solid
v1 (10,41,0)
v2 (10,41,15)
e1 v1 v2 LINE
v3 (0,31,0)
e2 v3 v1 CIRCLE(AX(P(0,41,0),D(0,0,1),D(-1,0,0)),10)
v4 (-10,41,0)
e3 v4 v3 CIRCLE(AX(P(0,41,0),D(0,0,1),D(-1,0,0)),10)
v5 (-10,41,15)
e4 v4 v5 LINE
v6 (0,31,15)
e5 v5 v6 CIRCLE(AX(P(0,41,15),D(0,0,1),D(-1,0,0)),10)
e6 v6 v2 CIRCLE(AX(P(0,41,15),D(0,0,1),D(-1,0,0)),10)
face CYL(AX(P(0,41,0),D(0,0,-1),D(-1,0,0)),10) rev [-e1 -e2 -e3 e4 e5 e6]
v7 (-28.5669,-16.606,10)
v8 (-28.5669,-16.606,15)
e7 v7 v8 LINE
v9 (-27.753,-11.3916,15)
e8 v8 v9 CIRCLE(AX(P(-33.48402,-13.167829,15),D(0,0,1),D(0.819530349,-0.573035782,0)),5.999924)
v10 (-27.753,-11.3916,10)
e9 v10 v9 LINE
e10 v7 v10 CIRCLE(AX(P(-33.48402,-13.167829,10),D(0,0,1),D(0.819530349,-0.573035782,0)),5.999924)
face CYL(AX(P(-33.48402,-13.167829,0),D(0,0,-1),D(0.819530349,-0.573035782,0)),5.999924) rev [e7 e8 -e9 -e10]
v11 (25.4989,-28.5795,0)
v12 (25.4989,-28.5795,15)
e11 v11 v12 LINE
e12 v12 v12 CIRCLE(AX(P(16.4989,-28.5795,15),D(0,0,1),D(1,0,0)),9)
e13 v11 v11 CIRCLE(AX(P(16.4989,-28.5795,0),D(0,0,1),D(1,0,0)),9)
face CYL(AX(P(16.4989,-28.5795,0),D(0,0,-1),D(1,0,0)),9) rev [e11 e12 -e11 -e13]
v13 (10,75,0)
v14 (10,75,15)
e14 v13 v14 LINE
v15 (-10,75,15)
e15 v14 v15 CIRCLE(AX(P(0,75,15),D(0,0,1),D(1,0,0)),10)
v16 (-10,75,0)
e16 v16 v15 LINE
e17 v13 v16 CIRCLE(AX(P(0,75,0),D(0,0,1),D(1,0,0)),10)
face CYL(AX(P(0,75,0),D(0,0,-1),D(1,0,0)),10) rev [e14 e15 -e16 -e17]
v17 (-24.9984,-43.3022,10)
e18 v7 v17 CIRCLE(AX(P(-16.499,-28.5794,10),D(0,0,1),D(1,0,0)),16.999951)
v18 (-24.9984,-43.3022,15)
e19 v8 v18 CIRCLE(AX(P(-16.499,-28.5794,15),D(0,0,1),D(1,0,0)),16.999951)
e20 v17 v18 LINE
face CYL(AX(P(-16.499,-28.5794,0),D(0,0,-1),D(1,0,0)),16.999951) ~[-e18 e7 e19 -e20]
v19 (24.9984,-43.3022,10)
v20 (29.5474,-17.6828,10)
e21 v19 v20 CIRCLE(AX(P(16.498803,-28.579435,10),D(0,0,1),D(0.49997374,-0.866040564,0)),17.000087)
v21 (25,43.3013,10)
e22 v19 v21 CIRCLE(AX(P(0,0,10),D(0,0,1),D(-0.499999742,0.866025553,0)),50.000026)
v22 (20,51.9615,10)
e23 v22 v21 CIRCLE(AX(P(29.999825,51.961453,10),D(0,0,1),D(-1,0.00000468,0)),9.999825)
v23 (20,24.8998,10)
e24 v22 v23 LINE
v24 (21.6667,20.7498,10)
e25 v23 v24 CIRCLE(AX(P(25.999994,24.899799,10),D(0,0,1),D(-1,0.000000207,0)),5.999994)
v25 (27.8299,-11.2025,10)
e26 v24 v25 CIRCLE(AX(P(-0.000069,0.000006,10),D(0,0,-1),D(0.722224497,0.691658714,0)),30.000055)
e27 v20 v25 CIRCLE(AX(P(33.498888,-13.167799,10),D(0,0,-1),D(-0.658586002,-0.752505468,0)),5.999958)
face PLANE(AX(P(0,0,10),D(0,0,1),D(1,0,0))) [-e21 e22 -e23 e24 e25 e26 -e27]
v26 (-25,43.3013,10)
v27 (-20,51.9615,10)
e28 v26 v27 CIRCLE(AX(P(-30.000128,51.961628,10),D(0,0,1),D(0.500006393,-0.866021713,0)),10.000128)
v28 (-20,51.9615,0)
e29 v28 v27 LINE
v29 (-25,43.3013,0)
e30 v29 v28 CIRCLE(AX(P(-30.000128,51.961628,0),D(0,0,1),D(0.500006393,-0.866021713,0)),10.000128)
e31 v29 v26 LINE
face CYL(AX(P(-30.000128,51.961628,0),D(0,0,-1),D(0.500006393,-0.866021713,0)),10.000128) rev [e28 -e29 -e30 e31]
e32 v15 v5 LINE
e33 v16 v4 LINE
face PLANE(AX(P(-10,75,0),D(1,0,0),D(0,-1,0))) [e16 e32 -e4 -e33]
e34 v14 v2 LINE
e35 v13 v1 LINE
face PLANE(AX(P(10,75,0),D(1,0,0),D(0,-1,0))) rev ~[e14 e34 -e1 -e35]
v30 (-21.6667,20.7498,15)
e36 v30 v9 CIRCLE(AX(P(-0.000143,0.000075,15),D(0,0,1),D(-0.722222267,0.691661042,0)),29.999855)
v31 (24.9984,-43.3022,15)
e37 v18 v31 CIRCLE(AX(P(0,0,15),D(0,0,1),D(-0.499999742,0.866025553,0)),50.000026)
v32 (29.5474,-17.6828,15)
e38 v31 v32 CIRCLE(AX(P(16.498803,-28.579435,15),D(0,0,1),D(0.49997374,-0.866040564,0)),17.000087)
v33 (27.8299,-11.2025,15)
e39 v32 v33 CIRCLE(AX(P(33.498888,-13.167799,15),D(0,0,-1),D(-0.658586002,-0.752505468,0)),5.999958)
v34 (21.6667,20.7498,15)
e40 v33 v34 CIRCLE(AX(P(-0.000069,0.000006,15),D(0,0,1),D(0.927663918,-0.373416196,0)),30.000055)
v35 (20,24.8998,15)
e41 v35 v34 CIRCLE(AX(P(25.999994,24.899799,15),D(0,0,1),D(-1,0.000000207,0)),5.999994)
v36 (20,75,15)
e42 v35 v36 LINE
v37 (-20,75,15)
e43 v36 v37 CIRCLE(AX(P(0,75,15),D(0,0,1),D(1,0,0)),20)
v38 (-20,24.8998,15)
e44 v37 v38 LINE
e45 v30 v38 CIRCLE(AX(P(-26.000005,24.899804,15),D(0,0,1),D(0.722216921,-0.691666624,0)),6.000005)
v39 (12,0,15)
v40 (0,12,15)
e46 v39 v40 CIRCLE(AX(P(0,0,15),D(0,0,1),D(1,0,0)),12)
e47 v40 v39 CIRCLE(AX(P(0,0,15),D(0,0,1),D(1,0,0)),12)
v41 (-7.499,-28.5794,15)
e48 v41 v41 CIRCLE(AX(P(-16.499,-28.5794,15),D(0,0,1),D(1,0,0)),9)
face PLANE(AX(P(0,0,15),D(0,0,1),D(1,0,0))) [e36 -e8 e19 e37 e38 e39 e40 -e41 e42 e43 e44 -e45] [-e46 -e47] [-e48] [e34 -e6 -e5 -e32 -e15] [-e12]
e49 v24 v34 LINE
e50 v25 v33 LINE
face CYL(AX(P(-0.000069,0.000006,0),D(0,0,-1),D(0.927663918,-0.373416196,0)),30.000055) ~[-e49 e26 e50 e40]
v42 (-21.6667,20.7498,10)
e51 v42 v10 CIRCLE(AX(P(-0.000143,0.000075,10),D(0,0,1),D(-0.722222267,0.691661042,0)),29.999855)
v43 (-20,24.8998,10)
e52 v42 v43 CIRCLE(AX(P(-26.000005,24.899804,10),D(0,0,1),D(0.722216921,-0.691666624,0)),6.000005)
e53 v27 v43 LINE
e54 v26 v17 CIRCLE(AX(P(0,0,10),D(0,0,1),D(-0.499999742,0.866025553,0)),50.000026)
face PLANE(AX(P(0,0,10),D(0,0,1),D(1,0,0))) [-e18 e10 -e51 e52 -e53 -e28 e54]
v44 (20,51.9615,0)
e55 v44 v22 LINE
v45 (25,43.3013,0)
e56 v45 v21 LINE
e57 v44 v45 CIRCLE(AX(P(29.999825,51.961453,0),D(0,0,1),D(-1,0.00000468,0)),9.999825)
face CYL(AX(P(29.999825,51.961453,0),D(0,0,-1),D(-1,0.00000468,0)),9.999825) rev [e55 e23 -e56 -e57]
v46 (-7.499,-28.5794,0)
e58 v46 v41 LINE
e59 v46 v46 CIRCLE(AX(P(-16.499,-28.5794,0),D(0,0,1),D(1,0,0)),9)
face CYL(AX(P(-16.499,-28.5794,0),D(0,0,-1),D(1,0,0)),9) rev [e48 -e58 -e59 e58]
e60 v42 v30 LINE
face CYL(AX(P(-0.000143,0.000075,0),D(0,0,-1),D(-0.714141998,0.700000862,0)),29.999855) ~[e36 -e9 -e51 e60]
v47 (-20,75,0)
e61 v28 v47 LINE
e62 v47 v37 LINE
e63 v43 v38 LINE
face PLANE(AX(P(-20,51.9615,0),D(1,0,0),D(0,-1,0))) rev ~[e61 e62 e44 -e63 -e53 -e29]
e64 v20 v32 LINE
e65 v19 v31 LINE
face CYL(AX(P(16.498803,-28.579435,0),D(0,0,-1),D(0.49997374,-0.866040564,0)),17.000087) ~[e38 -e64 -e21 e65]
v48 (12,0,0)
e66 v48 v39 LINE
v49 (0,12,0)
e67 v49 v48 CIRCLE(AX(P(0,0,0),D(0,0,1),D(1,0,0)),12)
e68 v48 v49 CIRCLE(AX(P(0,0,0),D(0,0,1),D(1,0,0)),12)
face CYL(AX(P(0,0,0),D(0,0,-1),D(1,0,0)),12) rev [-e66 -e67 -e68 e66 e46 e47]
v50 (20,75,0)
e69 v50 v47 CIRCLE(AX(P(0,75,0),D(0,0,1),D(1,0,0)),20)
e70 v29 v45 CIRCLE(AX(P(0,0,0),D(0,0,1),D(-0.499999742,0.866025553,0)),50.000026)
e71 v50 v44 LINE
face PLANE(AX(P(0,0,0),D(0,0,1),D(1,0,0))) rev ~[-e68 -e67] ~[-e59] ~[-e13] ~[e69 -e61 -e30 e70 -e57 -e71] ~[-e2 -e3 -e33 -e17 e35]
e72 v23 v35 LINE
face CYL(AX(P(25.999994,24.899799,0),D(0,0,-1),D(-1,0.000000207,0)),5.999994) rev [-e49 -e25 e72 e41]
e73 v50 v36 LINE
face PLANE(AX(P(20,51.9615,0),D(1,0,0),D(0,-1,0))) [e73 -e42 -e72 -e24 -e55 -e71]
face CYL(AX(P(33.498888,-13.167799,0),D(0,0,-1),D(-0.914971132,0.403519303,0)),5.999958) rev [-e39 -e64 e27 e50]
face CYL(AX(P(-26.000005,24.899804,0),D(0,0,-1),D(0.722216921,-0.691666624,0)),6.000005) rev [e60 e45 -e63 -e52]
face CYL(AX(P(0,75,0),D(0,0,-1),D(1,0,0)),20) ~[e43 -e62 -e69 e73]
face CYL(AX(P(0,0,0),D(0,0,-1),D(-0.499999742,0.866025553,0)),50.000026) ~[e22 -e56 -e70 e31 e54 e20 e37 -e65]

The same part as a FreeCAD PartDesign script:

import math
import FreeCAD as App
import Part
import Sketcher

V = App.Vector

doc = App.newDocument("Part")
body = doc.addObject("PartDesign::Body", "Body")
body.AllowCompound = True

# Sketch on XY plane
sketch1 = body.newObject("Sketcher::SketchObject", "Sketch")
sketch1.AttachmentSupport = (doc.getObject("XY_Plane"), [""])
sketch1.MapMode = "FlatFace"
sketch1.addGeometry([
    Part.ArcOfCircle(Part.Circle(V(-30, 52, 0), V(0, 0, 1), 10), math.radians(-60), math.radians(0)),  # 0
    Part.ArcOfCircle(Part.Circle(V(0, 0, 0), V(0, 0, 1), 50), math.radians(120), math.radians(240)),  # 1
    Part.ArcOfCircle(Part.Circle(V(-16.5, -28.6, 0), V(0, 0, 1), 17), math.radians(135), math.radians(240)),  # 2
    Part.ArcOfCircle(Part.Circle(V(-33.5, -13.2, 0), V(0, 0, 1), 6), math.radians(-35), math.radians(17)),  # 3
    Part.ArcOfCircle(Part.Circle(V(0, 0, 0), V(0, 0, 1), 30), math.radians(136), math.radians(202)),  # 4
    Part.ArcOfCircle(Part.Circle(V(-26, 24.9, 0), V(0, 0, 1), 6), math.radians(-44), math.radians(0)),  # 5
    Part.LineSegment(V(-20, 24.9, 0), V(-20, 52, 0)),  # 6
    Part.ArcOfCircle(Part.Circle(V(16.5, -28.6, 0), V(0, 0, 1), 17), math.radians(-60), math.radians(40)),  # 7
    Part.ArcOfCircle(Part.Circle(V(0, 0, 0), V(0, 0, 1), 50), math.radians(-60), math.radians(60)),  # 8
    Part.ArcOfCircle(Part.Circle(V(30, 52, 0), V(0, 0, 1), 10), math.radians(180), math.radians(240)),  # 9
    Part.LineSegment(V(20, 52, 0), V(20, 24.9, 0)),  # 10
    Part.ArcOfCircle(Part.Circle(V(26, 24.9, 0), V(0, 0, 1), 6), math.radians(180), math.radians(224)),  # 11
    Part.ArcOfCircle(Part.Circle(V(0, 0, 0), V(0, 0, 1), 30), math.radians(-22), math.radians(44)),  # 12
    Part.ArcOfCircle(Part.Circle(V(33.5, -13.2, 0), V(0, 0, 1), 6), math.radians(161), math.radians(229)),  # 13
], False)
sketch1.addConstraint([
    Sketcher.Constraint("Tangent", 0, 1, 1, 1),
    Sketcher.Constraint("Tangent", 1, 2, 2, 2),
    Sketcher.Constraint("Coincident", 2, 1, 3, 1),
    Sketcher.Constraint("Coincident", 3, 2, 4, 2),
    Sketcher.Constraint("Tangent", 4, 1, 5, 1),
    Sketcher.Constraint("Tangent", 5, 2, 6, 1),
    Sketcher.Constraint("Tangent", 6, 2, 0, 2),
    Sketcher.Constraint("Tangent", 7, 1, 8, 1),
    Sketcher.Constraint("Tangent", 8, 2, 9, 2),
    Sketcher.Constraint("Tangent", 9, 1, 10, 1),
    Sketcher.Constraint("Tangent", 10, 2, 11, 1),
    Sketcher.Constraint("Tangent", 11, 2, 12, 2),
    Sketcher.Constraint("Coincident", 12, 1, 13, 1),
    Sketcher.Constraint("Coincident", 13, 2, 7, 2),
    Sketcher.Constraint("Vertical", 6),
    Sketcher.Constraint("Vertical", 10),
    Sketcher.Constraint("Coincident", 1, 3, -1, 1),
    Sketcher.Constraint("Coincident", 4, 3, -1, 1),
    Sketcher.Constraint("Coincident", 8, 3, -1, 1),
    Sketcher.Constraint("Coincident", 12, 3, -1, 1),
    Sketcher.Constraint("Equal", 3, 5),
    Sketcher.Constraint("Equal", 2, 7),
    Sketcher.Constraint("Equal", 1, 8),
    Sketcher.Constraint("Equal", 0, 9),
    Sketcher.Constraint("Equal", 5, 11),
    Sketcher.Constraint("Equal", 4, 12),
    Sketcher.Constraint("Equal", 11, 13),
    Sketcher.Constraint("Horizontal", 2, 3, 7, 3),
    Sketcher.Constraint("Horizontal", 0, 3, 9, 3),
    Sketcher.Constraint("Horizontal", 3, 3, 13, 3),
    Sketcher.Constraint("Radius", 0, 10.0),
    Sketcher.Constraint("Radius", 1, 50.0),
    Sketcher.Constraint("Radius", 2, 17.0),
    Sketcher.Constraint("Radius", 3, 6.0),
    Sketcher.Constraint("Radius", 4, 30.0),
    Sketcher.Constraint("DistanceX", 0, 3, -1, 1, 30.0),
    Sketcher.Constraint("DistanceX", 7, 3, 13, 3, 17.0),
    Sketcher.Constraint("DistanceX", -1, 1, 12, 1, 27.83),
    Sketcher.Constraint("DistanceX", 2, 3, -1, 1, 16.499),
    Sketcher.Constraint("DistanceX", 3, 3, -1, 1, 33.484),
])
pad1 = body.newObject("PartDesign::Pad", "Pad")
pad1.Profile = sketch1
pad1.Length = 10

# Sketch on XY plane
sketch2 = body.newObject("Sketcher::SketchObject", "Sketch001")
sketch2.AttachmentSupport = (doc.getObject("XY_Plane"), [""])
sketch2.MapMode = "FlatFace"
sketch2.addGeometry([
    Part.ArcOfCircle(Part.Circle(V(-33.5, -13.2, 0), V(0, 0, 1), 6), math.radians(-35), math.radians(17)),  # 0
    Part.ArcOfCircle(Part.Circle(V(-16.5, -28.6, 0), V(0, 0, 1), 17), math.radians(135), math.radians(240)),  # 1
    Part.ArcOfCircle(Part.Circle(V(0, 0, 0), V(0, 0, 1), 50), math.radians(-120), math.radians(-60)),  # 2
    Part.ArcOfCircle(Part.Circle(V(16.5, -28.6, 0), V(0, 0, 1), 17), math.radians(-60), math.radians(40)),  # 3
    Part.ArcOfCircle(Part.Circle(V(33.5, -13.2, 0), V(0, 0, 1), 6), math.radians(161), math.radians(229)),  # 4
    Part.ArcOfCircle(Part.Circle(V(0, 0, 0), V(0, 0, 1), 30), math.radians(-22), math.radians(44)),  # 5
    Part.ArcOfCircle(Part.Circle(V(26, 24.9, 0), V(0, 0, 1), 6), math.radians(180), math.radians(224)),  # 6
    Part.LineSegment(V(20, 24.9, 0), V(20, 75, 0)),  # 7
    Part.ArcOfCircle(Part.Circle(V(0, 75, 0), V(0, 0, 1), 20), math.radians(0), math.radians(180)),  # 8
    Part.LineSegment(V(-20, 75, 0), V(-20, 24.9, 0)),  # 9
    Part.ArcOfCircle(Part.Circle(V(-26, 24.9, 0), V(0, 0, 1), 6), math.radians(-44), math.radians(0)),  # 10
    Part.ArcOfCircle(Part.Circle(V(0, 0, 0), V(0, 0, 1), 30), math.radians(136), math.radians(202)),  # 11
    Part.Circle(V(16.5, -28.6, 0), V(0, 0, 1), 9),  # 12
    Part.Circle(V(0, 0, 0), V(0, 0, 1), 12),  # 13
    Part.ArcOfCircle(Part.Circle(V(0, 41, 0), V(0, 0, 1), 10), math.radians(-90), math.radians(0)),  # 14
    Part.ArcOfCircle(Part.Circle(V(0, 41, 0), V(0, 0, 1), 10), math.radians(180), math.radians(270)),  # 15
    Part.LineSegment(V(-10, 41, 0), V(-10, 75, 0)),  # 16
    Part.ArcOfCircle(Part.Circle(V(0, 75, 0), V(0, 0, 1), 10), math.radians(0), math.radians(180)),  # 17
    Part.LineSegment(V(10, 75, 0), V(10, 41, 0)),  # 18
    Part.Circle(V(-16.5, -28.6, 0), V(0, 0, 1), 9),  # 19
], False)
sketch2.addConstraint([
    Sketcher.Constraint("Coincident", 0, 1, 1, 1),
    Sketcher.Constraint("Tangent", 1, 2, 2, 1),
    Sketcher.Constraint("Tangent", 2, 2, 3, 1),
    Sketcher.Constraint("Coincident", 3, 2, 4, 2),
    Sketcher.Constraint("Coincident", 4, 1, 5, 1),
    Sketcher.Constraint("Tangent", 5, 2, 6, 2),
    Sketcher.Constraint("Tangent", 6, 1, 7, 1),
    Sketcher.Constraint("Tangent", 7, 2, 8, 1),
    Sketcher.Constraint("Tangent", 8, 2, 9, 1),
    Sketcher.Constraint("Tangent", 9, 2, 10, 2),
    Sketcher.Constraint("Tangent", 10, 1, 11, 1),
    Sketcher.Constraint("Coincident", 11, 2, 0, 2),
    Sketcher.Constraint("Tangent", 14, 1, 15, 2),
    Sketcher.Constraint("Tangent", 15, 1, 16, 1),
    Sketcher.Constraint("Tangent", 16, 2, 17, 2),
    Sketcher.Constraint("Tangent", 17, 1, 18, 1),
    Sketcher.Constraint("Tangent", 18, 2, 14, 2),
    Sketcher.Constraint("Vertical", 7),
    Sketcher.Constraint("Vertical", 9),
    Sketcher.Constraint("Vertical", 16),
    Sketcher.Constraint("Vertical", 18),
    Sketcher.Constraint("Coincident", 2, 3, -1, 1),
    Sketcher.Constraint("Coincident", 5, 3, -1, 1),
    Sketcher.Constraint("Coincident", 11, 3, -1, 1),
    Sketcher.Constraint("Coincident", 13, 3, -1, 1),
    Sketcher.Constraint("Coincident", 12, 3, 3, 3),
    Sketcher.Constraint("Coincident", 17, 3, 8, 3),
    Sketcher.Constraint("Coincident", 19, 3, 1, 3),
    Sketcher.Constraint("Equal", 1, 3),
    Sketcher.Constraint("Equal", 0, 4),
    Sketcher.Constraint("Equal", 4, 6),
    Sketcher.Constraint("Equal", 6, 10),
    Sketcher.Constraint("Equal", 5, 11),
    Sketcher.Constraint("Equal", 14, 15),
    Sketcher.Constraint("Equal", 12, 19),
    Sketcher.Constraint("PointOnObject", 8, 3, -2),
    Sketcher.Constraint("PointOnObject", 14, 1, -2),
    Sketcher.Constraint("Horizontal", 1, 3, 3, 3),
    Sketcher.Constraint("Horizontal", 0, 3, 4, 3),
    Sketcher.Constraint("Diameter", 12, 18.0),
    Sketcher.Constraint("Diameter", 13, 24.0),
    Sketcher.Constraint("Radius", 0, 6.0),
    Sketcher.Constraint("Radius", 1, 17.0),
    Sketcher.Constraint("Radius", 2, 50.0),
    Sketcher.Constraint("Radius", 5, 30.0),
    Sketcher.Constraint("Radius", 8, 20.0),
    Sketcher.Constraint("Radius", 14, 10.0),
    Sketcher.Constraint("DistanceY", 16, 1, 16, 2, 34.0),
    Sketcher.Constraint("DistanceY", -1, 1, 8, 3, 75.0),
    Sketcher.Constraint("DistanceX", 3, 3, 4, 3, 17.0),
    Sketcher.Constraint("DistanceX", -1, 1, 4, 1, 27.83),
    Sketcher.Constraint("DistanceX", 0, 3, -1, 1, 33.484),
    Sketcher.Constraint("DistanceX", 1, 3, -1, 1, 16.499),
])
pad2 = body.newObject("PartDesign::Pad", "Pad001")
pad2.Profile = sketch2
pad2.Length = 15

doc.recompute()
